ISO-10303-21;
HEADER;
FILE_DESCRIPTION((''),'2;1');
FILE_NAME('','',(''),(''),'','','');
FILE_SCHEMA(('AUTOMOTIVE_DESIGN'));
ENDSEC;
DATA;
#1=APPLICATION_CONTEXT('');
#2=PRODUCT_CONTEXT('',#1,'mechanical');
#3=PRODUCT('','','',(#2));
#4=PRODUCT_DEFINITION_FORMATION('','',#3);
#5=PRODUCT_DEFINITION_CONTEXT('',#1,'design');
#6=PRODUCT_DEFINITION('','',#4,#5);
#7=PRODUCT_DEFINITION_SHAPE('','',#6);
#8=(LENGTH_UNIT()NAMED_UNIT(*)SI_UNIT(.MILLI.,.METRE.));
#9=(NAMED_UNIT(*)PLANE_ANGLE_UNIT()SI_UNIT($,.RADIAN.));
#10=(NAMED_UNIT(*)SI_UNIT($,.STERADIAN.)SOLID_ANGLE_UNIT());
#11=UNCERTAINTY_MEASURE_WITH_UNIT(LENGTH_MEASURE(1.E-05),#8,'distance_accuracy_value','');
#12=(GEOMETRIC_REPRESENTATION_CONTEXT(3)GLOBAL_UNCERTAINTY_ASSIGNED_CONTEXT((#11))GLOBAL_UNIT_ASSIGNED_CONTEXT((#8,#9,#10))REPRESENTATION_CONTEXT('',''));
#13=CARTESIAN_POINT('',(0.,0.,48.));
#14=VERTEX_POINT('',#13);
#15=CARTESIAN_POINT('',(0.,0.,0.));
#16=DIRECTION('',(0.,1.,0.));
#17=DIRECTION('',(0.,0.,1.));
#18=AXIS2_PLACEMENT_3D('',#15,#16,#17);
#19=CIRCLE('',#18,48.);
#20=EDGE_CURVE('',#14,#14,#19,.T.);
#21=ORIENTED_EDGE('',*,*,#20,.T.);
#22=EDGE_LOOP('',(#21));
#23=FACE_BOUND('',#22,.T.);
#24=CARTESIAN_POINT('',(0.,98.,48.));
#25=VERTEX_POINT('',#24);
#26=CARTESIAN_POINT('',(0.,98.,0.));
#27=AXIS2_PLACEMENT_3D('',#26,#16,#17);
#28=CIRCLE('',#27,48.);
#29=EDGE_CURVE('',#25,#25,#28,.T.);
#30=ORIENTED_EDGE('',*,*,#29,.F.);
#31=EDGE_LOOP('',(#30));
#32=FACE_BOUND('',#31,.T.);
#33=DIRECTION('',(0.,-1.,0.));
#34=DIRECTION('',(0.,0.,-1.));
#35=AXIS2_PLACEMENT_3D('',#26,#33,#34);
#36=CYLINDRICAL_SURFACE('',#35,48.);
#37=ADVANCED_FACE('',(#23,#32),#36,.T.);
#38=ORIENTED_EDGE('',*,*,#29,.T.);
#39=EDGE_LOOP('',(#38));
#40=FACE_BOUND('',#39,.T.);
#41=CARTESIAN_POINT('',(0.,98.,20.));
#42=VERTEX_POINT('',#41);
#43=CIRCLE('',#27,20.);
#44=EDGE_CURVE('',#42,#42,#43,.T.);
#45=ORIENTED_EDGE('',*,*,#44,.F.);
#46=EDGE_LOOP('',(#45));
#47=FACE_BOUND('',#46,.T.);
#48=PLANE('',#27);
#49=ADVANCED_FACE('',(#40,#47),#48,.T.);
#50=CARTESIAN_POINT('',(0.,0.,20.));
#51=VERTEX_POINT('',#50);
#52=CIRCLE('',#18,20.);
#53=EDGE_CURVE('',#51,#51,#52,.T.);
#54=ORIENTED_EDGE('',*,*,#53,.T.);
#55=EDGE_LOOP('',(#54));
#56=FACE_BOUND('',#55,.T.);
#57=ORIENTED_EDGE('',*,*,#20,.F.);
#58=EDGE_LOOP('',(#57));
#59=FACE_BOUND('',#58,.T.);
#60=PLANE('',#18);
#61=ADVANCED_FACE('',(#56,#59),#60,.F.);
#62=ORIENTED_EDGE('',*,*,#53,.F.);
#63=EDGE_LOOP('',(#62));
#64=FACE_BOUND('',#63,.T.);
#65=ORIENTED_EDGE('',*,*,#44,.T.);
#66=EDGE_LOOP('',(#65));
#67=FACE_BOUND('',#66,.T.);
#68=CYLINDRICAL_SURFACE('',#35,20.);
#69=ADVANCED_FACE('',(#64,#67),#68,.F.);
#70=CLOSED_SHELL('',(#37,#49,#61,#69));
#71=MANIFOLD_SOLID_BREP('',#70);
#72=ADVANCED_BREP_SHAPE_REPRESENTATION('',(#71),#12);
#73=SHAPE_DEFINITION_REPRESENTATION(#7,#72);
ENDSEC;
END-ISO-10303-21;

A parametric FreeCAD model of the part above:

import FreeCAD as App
import Part
import Sketcher

doc = App.newDocument("Part")
body = doc.addObject("PartDesign::Body", "Body")

sketch1 = body.newObject("Sketcher::SketchObject", "Sketch")
sketch1.AttachmentSupport = (doc.getObject("XZ_Plane"), [""])
sketch1.MapMode = "FlatFace"
sketch1.addGeometry([
    Part.Circle(App.Vector(0, 0, 0), App.Vector(0, 0, 1), 48),
    Part.Circle(App.Vector(0, 0, 0), App.Vector(0, 0, 1), 20),
], False)
sketch1.addConstraint([
    Sketcher.Constraint("Coincident", 0, 3, -1, 1),
    Sketcher.Constraint("Coincident", 1, 3, -1, 1),
    Sketcher.Constraint("Diameter", 0, 96.0),
    Sketcher.Constraint("Diameter", 1, 40.0),
])
pad1 = body.newObject("PartDesign::Pad", "Pad")
pad1.Profile = sketch1
pad1.Length = 98
pad1.Reversed = True

doc.recompute()
